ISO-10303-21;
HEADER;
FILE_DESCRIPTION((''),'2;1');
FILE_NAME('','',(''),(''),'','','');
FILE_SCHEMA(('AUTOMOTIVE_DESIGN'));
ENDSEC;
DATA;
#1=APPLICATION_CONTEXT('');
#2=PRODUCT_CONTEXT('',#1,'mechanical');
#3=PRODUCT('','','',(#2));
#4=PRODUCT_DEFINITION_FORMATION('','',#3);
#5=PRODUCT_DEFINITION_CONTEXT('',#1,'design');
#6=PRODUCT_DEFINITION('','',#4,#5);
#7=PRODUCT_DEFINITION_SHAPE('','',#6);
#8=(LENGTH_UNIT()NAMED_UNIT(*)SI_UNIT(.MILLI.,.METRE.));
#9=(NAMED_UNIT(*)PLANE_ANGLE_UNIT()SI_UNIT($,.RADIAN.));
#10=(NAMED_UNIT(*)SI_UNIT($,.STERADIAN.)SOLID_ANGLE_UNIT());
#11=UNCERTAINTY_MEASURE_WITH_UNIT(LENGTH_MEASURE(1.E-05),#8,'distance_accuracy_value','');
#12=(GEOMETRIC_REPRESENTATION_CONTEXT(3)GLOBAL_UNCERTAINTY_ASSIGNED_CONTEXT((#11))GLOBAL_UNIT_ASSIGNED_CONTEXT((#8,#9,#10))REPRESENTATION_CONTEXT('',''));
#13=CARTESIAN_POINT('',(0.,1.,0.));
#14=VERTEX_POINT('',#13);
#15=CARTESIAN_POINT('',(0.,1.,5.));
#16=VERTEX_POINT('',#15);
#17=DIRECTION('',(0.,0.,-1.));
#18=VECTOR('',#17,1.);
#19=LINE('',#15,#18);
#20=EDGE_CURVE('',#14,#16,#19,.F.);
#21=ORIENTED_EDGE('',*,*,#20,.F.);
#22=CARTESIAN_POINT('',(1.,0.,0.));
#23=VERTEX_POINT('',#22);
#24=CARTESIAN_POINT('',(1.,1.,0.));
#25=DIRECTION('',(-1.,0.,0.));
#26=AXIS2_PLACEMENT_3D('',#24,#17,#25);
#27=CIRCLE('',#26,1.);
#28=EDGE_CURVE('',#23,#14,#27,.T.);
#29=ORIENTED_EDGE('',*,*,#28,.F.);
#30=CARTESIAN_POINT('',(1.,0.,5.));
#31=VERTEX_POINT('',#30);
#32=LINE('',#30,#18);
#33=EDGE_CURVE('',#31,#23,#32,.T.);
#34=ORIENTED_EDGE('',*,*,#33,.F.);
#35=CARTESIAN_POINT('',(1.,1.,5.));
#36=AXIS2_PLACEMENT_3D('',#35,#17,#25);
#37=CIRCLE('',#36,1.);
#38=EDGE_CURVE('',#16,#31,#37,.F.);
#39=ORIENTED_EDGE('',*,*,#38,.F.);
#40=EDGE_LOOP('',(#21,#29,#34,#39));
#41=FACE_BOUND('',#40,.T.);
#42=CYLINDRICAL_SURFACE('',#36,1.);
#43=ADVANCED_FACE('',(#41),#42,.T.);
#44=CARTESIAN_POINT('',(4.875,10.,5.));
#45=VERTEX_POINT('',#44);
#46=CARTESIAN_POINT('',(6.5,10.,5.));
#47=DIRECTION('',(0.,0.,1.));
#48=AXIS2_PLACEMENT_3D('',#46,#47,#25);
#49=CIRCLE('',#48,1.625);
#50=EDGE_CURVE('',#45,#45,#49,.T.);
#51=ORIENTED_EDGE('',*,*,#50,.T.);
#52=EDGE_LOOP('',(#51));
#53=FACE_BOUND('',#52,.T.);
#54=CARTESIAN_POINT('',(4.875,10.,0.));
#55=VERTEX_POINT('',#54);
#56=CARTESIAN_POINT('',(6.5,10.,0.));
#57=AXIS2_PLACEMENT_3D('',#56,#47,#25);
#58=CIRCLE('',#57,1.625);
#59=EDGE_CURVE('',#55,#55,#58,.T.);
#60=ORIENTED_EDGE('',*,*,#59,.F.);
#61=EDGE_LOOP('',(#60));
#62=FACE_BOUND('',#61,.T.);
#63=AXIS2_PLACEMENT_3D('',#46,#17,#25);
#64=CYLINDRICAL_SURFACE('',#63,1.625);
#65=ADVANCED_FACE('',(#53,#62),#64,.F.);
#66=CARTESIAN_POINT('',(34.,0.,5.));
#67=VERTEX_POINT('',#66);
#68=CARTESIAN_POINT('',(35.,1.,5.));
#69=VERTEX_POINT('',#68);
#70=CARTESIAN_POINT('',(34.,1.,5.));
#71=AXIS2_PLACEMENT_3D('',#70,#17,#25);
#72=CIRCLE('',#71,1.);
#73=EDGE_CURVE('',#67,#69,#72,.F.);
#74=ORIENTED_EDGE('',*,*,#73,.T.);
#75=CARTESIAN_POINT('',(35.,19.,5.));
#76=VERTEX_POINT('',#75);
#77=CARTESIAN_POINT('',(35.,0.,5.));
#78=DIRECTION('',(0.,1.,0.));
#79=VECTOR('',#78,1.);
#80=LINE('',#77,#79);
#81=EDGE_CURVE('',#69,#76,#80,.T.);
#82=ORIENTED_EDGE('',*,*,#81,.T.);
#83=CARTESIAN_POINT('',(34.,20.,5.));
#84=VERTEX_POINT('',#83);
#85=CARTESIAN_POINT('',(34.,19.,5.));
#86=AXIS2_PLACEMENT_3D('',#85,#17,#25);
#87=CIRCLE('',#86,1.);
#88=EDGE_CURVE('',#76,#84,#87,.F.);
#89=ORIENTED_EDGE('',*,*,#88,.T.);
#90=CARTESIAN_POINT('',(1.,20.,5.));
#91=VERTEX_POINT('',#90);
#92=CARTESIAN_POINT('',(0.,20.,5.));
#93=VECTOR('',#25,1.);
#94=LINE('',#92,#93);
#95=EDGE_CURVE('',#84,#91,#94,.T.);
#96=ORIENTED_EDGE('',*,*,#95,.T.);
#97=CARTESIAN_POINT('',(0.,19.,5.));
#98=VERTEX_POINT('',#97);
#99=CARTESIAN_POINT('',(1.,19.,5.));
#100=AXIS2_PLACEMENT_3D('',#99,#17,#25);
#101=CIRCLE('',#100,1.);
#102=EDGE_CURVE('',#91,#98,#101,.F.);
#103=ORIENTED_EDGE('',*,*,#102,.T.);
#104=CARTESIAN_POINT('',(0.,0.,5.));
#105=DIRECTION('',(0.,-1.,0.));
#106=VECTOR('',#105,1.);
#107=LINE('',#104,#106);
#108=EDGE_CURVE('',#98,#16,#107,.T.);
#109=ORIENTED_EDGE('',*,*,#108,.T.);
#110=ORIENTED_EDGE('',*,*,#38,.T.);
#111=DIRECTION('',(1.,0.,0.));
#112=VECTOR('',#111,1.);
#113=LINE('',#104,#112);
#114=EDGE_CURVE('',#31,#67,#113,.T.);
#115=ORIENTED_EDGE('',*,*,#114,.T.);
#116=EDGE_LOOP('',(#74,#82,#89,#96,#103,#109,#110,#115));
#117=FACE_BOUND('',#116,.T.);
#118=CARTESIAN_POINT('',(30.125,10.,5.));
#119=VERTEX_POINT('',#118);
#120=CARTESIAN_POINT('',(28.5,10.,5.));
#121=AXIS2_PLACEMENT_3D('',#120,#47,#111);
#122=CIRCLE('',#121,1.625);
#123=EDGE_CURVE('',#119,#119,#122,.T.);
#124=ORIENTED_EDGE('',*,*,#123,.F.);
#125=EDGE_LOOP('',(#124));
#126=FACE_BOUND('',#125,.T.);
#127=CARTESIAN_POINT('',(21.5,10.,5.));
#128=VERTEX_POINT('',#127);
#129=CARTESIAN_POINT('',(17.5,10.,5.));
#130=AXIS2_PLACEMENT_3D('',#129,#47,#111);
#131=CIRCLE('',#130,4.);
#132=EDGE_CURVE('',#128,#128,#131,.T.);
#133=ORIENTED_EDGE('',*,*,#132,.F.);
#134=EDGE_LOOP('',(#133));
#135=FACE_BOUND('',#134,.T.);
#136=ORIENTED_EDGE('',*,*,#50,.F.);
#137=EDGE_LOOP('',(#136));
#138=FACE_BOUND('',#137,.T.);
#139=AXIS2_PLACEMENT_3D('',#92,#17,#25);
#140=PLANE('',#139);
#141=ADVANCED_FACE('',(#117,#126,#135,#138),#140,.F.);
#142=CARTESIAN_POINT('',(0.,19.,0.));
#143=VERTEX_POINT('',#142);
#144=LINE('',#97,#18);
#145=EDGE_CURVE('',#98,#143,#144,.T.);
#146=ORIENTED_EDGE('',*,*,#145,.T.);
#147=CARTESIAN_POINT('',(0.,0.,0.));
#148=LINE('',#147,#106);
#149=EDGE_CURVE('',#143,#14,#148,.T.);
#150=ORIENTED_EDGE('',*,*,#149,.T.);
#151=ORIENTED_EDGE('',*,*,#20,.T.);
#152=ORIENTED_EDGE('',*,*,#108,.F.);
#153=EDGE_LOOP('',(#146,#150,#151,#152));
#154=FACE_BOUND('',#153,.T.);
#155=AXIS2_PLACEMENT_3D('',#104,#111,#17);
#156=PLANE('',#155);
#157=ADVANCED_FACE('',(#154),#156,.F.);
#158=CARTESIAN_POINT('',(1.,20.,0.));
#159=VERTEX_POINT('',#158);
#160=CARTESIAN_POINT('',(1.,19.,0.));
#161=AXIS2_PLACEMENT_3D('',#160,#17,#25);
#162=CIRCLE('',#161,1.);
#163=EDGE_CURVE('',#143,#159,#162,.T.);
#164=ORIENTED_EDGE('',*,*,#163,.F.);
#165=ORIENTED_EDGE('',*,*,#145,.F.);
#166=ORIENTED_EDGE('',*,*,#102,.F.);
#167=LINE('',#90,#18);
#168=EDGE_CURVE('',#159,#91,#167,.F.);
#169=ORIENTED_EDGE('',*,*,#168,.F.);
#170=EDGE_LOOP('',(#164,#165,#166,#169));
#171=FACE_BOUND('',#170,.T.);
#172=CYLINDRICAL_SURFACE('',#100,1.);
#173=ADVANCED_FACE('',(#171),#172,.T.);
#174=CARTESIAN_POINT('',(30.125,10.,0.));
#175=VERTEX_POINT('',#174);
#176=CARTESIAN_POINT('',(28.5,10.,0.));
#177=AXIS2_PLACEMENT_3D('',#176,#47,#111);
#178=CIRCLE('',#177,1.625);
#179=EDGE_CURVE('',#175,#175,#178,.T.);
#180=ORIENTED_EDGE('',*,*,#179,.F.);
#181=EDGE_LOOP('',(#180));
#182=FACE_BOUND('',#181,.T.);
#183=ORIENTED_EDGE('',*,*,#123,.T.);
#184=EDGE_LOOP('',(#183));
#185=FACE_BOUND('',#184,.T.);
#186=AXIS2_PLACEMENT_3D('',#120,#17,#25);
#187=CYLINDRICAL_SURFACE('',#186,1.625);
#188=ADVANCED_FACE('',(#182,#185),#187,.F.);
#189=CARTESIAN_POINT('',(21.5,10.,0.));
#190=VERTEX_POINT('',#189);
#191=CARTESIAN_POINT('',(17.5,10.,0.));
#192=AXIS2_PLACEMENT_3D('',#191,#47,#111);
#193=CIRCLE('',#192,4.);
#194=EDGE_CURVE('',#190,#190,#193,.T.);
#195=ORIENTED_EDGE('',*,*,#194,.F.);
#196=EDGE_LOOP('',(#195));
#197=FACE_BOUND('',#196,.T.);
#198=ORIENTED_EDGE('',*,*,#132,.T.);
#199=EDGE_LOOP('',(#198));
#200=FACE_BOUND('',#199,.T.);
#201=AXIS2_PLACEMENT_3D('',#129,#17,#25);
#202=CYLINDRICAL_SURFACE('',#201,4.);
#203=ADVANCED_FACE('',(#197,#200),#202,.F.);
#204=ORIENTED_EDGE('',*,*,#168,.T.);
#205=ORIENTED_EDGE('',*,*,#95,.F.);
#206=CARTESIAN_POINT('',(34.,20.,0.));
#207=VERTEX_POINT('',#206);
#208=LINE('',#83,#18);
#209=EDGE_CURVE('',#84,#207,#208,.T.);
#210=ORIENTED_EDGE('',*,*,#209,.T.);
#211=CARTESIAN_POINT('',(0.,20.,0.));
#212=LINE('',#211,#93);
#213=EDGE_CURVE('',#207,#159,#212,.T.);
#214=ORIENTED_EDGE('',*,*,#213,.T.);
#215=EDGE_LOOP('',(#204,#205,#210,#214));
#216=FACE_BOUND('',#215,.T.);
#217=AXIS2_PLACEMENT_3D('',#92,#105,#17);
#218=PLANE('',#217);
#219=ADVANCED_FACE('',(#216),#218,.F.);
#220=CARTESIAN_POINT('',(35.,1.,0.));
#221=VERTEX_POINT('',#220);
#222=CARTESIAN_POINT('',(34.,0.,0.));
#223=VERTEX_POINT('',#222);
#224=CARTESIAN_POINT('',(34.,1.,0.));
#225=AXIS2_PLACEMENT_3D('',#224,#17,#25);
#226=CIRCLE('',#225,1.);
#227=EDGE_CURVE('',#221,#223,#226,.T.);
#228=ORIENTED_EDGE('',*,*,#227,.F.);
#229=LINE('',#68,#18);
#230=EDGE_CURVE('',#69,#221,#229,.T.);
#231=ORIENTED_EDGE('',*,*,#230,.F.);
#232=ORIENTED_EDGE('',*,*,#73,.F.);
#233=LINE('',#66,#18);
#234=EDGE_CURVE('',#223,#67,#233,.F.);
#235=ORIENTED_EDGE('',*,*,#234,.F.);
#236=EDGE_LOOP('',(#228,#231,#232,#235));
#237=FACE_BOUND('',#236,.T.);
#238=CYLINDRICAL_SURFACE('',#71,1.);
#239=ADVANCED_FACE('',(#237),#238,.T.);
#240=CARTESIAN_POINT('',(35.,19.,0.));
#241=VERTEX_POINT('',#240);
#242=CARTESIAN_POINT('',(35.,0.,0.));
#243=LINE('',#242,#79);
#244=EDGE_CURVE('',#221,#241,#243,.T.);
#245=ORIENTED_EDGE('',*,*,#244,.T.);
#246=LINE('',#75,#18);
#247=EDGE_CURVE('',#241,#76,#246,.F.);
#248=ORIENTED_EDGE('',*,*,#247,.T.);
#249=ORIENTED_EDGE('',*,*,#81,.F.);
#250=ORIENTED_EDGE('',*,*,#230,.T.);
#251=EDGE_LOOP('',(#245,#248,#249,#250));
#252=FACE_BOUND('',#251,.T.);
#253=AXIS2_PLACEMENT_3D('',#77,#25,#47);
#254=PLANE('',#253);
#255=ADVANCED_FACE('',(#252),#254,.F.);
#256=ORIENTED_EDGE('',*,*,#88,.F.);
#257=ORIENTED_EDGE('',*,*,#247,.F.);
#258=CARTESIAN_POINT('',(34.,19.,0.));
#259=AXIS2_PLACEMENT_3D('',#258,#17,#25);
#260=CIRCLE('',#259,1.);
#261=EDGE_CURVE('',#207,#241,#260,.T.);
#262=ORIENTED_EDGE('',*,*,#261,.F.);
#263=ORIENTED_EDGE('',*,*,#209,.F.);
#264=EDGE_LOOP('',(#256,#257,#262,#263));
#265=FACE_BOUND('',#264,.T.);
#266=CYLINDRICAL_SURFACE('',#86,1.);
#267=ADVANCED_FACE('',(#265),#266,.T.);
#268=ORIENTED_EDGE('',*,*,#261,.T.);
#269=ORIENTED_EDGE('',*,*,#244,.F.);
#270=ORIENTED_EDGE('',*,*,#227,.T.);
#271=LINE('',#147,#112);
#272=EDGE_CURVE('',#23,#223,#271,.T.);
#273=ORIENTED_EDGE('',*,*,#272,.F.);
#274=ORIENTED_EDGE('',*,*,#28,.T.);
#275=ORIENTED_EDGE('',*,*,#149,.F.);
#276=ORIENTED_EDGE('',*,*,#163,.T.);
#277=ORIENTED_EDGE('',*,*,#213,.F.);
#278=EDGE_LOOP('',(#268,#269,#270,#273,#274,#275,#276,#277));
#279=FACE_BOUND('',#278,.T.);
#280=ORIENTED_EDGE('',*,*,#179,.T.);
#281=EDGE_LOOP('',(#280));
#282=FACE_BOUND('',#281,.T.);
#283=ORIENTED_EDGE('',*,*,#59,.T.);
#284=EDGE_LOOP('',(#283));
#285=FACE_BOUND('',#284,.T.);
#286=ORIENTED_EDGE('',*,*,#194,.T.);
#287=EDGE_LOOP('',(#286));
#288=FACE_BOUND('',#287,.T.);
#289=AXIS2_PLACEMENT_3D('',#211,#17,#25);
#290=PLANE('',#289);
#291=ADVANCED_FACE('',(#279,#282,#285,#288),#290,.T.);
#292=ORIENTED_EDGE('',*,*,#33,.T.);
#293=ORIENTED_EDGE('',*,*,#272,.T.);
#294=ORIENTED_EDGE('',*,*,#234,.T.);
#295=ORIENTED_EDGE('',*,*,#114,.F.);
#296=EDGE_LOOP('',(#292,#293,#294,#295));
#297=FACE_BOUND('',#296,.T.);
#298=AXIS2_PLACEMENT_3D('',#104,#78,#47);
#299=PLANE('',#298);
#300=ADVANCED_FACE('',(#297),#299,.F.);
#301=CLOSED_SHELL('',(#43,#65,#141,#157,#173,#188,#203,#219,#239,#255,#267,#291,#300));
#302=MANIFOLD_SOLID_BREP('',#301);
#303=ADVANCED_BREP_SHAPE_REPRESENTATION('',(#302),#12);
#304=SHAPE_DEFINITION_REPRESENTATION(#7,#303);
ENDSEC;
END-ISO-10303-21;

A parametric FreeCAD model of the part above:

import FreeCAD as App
import Part
import Sketcher
from FreeCAD import Vector


def edges_at(feature, points):
    """Names of the edges that pass closest to the given points."""
    edges = feature.Shape.Edges
    near = lambda p: min(range(len(edges)), key=lambda i: edges[i].distToShape(Part.Vertex(*p))[0])
    return sorted({f"Edge{near(p) + 1}" for p in points})

doc = App.newDocument("Part")
params = doc.addObject("Spreadsheet::Sheet", "Params")
for row, (alias, value) in enumerate([
    ("sketch1_diameter", "8 mm"),
    ("sketch1_diameter2", "3.25 mm"),
    ("sketch1_width", "35 mm"),
    ("sketch1_height", "20 mm"),
    ("pad1_length", "5 mm"),
    ("fillet_radius", "1 mm"),
], start=1):
    params.set(f"A{row}", alias)
    params.set(f"B{row}", "=" + value)
    params.setAlias(f"B{row}", alias)

body = doc.addObject("PartDesign::Body", "Body")

# Sketch on XY plane
sketch1 = body.newObject("Sketcher::SketchObject", "Sketch")
sketch1.AttachmentSupport = (doc.getObject("XY_Plane"), [""])
sketch1.MapMode = "FlatFace"
sketch1.addGeometry([
    Part.LineSegment(Vector(0, 20, 0), Vector(0, 0, 0)),  # 0
    Part.LineSegment(Vector(0, 0, 0), Vector(35, 0, 0)),  # 1
    Part.LineSegment(Vector(35, 0, 0), Vector(35, 20, 0)),  # 2
    Part.LineSegment(Vector(35, 20, 0), Vector(0, 20, 0)),  # 3
    Part.Circle(Vector(6.5, 10, 0), Vector(0, 0, 1), 1.625),  # 4
    Part.Circle(Vector(17.5, 10, 0), Vector(0, 0, 1), 4),  # 5
    Part.Circle(Vector(28.5, 10, 0), Vector(0, 0, 1), 1.625),  # 6
], False)
sketch1.addConstraint([
    Sketcher.Constraint("Coincident", 0, 2, 1, 1),
    Sketcher.Constraint("Coincident", 1, 2, 2, 1),
    Sketcher.Constraint("Coincident", 2, 2, 3, 1),
    Sketcher.Constraint("Coincident", 3, 2, 0, 1),
    Sketcher.Constraint("Vertical", 0),
    Sketcher.Constraint("Horizontal", 1),
    Sketcher.Constraint("Vertical", 2),
    Sketcher.Constraint("Horizontal", 3),
    Sketcher.Constraint("Coincident", 0, 2, -1, 1),
    Sketcher.Constraint("Equal", 4, 6),
    Sketcher.Constraint("Horizontal", 4, 3, 5, 3),
    Sketcher.Constraint("Horizontal", 5, 3, 6, 3),
    Sketcher.Constraint("Diameter", 5, 8.0),
    Sketcher.Constraint("Diameter", 4, 3.25),
    Sketcher.Constraint("DistanceX", 1, 1, 1, 2, 35.0),
    Sketcher.Constraint("DistanceY", 0, 2, 0, 1, 20.0),
    Sketcher.Constraint("DistanceY", -1, 1, 4, 3, 10.0),
    Sketcher.Constraint("DistanceX", 4, 3, 5, 3, 11.0),
    Sketcher.Constraint("DistanceX", 5, 3, 6, 3, 11.0),
    Sketcher.Constraint("DistanceX", -1, 1, 4, 3, 6.5),
])
sketch1.setExpression("Constraints[12]", "Params.sketch1_diameter")
sketch1.setExpression("Constraints[13]", "Params.sketch1_diameter2")
sketch1.setExpression("Constraints[14]", "Params.sketch1_width")
sketch1.setExpression("Constraints[15]", "Params.sketch1_height")
pad1 = body.newObject("PartDesign::Pad", "Pad")
pad1.Profile = sketch1
pad1.setExpression("Length", "Params.pad1_length")
doc.recompute()

fillet = body.newObject("PartDesign::Fillet", "Fillet")
fillet.Base = (pad1, edges_at(pad1, [
    (0, 20, 2.5),
    (35, 20, 2.5),
    (35, 0, 2.5),
    (0, 0, 2.5),
]))
fillet.setExpression("Radius", "Params.fillet_radius")

doc.recompute()
